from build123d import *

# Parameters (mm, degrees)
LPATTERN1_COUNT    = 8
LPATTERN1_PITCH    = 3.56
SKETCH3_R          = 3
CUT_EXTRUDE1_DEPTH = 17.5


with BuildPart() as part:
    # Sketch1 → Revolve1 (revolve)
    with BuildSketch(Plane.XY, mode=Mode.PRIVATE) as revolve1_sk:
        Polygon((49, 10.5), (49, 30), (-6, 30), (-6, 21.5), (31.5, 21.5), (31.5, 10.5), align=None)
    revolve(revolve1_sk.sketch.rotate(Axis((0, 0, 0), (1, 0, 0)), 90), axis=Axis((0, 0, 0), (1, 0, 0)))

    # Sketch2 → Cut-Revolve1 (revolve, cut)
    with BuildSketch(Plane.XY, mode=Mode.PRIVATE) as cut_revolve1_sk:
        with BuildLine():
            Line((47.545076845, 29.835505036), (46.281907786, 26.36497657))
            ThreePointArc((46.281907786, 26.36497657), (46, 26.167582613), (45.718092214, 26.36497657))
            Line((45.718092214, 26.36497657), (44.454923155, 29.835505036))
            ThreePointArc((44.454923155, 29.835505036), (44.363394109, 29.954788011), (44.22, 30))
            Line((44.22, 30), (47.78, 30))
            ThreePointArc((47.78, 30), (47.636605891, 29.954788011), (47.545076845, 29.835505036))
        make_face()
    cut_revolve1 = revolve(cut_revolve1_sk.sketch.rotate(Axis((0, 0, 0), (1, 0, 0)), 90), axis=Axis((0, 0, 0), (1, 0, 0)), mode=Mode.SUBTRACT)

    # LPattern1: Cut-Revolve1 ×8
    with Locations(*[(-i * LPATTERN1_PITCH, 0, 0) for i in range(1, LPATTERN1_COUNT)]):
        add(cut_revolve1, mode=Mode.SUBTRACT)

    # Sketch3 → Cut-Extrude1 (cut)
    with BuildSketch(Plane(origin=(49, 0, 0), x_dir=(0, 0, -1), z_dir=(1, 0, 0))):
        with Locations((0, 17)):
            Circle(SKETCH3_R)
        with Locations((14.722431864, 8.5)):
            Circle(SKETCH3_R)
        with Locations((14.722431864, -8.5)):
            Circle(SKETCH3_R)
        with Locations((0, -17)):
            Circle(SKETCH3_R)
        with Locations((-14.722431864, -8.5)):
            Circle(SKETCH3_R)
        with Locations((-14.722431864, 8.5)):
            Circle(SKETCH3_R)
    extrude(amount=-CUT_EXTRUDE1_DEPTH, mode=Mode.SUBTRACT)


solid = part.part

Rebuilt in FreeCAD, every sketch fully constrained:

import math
import FreeCAD as App
import Part
import Sketcher
from FreeCAD import Vector
Q = App.Units.Quantity


def add_polygon(sketch, points):
    """Adds a closed chain of lines whose ends are joined by coincident constraints."""
    first, n = sketch.GeometryCount, len(points)
    for a, b in zip(points, points[1:] + points[:1]):
        sketch.addGeometry(Part.LineSegment(App.Vector(*a, 0), App.Vector(*b, 0)), False)
    for i in range(n):
        sketch.addConstraint(Sketcher.Constraint("Coincident", first + i, 2, first + (i + 1) % n, 1))

doc = App.newDocument("Part")
body = doc.addObject("PartDesign::Body", "Body")

# Sketch on XY plane
sketch1 = doc.addObject("Sketcher::SketchObject", "Sketch")
body.addObject(sketch1)
sketch1.AttachmentSupport = (doc.XY_Plane, [""])
sketch1.MapMode = "FlatFace"
add_polygon(sketch1, [(49, 10), (49, 30), (-6, 30), (-6, 22), (32, 22), (32, 10)])  # lines 0-5
sketch1.addConstraint([
    Sketcher.Constraint("Vertical", 0),
    Sketcher.Constraint("Horizontal", 1),
    Sketcher.Constraint("Vertical", 2),
    Sketcher.Constraint("Horizontal", 3),
    Sketcher.Constraint("Vertical", 4),
    Sketcher.Constraint("Horizontal", 5),
    Sketcher.Constraint("DistanceX", 1, 2, 1, 1, Q("55 mm")),
    Sketcher.Constraint("DistanceY", 4, 2, 4, 1, Q("11 mm")),
    Sketcher.Constraint("DistanceX", 3, 1, 3, 2, Q("37.5 mm")),
    Sketcher.Constraint("DistanceY", 0, 1, 0, 2, Q("19.5 mm")),
    Sketcher.Constraint("DistanceX", -1, 1, 0, 2, Q("49 mm")),
    Sketcher.Constraint("DistanceY", -1, 1, 0, 2, Q("30 mm")),
])
revolution = doc.addObject("PartDesign::Revolution", "Revolution")
body.addObject(revolution)
revolution.Profile = sketch1
revolution.ReferenceAxis = (sketch1, ["H_Axis"])
revolution.Angle = 360

# Sketch on XY plane
sketch2 = doc.addObject("Sketcher::SketchObject", "Sketch001")
body.addObject(sketch2)
sketch2.AttachmentSupport = (doc.XY_Plane, [""])
sketch2.MapMode = "FlatFace"
sketch2.addGeometry([
    Part.LineSegment(Vector(46.28, 26.36, 0), Vector(47.55, 29.84, 0)),  # 0
    Part.ArcOfCircle(Part.Circle(Vector(47.78, 29.75, 0), Vector(0, 0, 1), 0.25), math.radians(90), math.radians(160)),  # 1
    Part.LineSegment(Vector(47.78, 30, 0), Vector(44.22, 30, 0)),  # 2
    Part.ArcOfCircle(Part.Circle(Vector(44.22, 29.75, 0), Vector(0, 0, 1), 0.25), math.radians(20), math.radians(90)),  # 3
    Part.LineSegment(Vector(44.45, 29.84, 0), Vector(45.72, 26.36, 0)),  # 4
    Part.ArcOfCircle(Part.Circle(Vector(46, 26.47, 0), Vector(0, 0, 1), 0.3), math.radians(-160), math.radians(-20)),  # 5
], False)
sketch2.addConstraint([
    Sketcher.Constraint("Tangent", 0, 2, 1, 2),
    Sketcher.Constraint("Tangent", 1, 1, 2, 1),
    Sketcher.Constraint("Tangent", 2, 2, 3, 2),
    Sketcher.Constraint("Tangent", 3, 1, 4, 1),
    Sketcher.Constraint("Tangent", 4, 2, 5, 1),
    Sketcher.Constraint("Tangent", 5, 2, 0, 1),
    Sketcher.Constraint("Horizontal", 2),
    Sketcher.Constraint("Equal", 1, 3),
    Sketcher.Constraint("Horizontal", 0, 2, 3, 1),
    Sketcher.Constraint("Radius", 5, Q("0.3 mm")),
    Sketcher.Constraint("Angle", 0, Q("70 deg")),
    Sketcher.Constraint("Radius", 1, Q("0.25 mm")),
    Sketcher.Constraint("DistanceX", -1, 1, 5, 3, Q("46 mm")),
    Sketcher.Constraint("DistanceY", -1, 1, 1, 1, Q("30 mm")),
    Sketcher.Constraint("DistanceX", 2, 2, 2, 1, Q("3.56 mm")),
])
groove = doc.addObject("PartDesign::Groove", "Groove")
body.addObject(groove)
groove.Profile = sketch2
groove.ReferenceAxis = (sketch2, ["H_Axis"])
groove.Angle = 360
doc.recompute()

linearpattern = doc.addObject("PartDesign::LinearPattern", "LinearPattern")
body.addObject(linearpattern)
linearpattern.Originals = [groove]
linearpattern.Direction = (doc.X_Axis, [""])
linearpattern.Mode = "offset"
linearpattern.Offset = 3.56
linearpattern.Occurrences = 8
linearpattern.Reversed = True
body.Tip = linearpattern

# Sketch on YZ plane
sketch3 = doc.addObject("Sketcher::SketchObject", "Sketch002")
body.addObject(sketch3)
sketch3.AttachmentSupport = (doc.YZ_Plane, [""])
sketch3.MapMode = "FlatFace"
sketch3.AttachmentOffset = App.Placement(Vector(0, 0, 49), App.Rotation())
sketch3.addGeometry([
    Part.Circle(Vector(17, 0, 0), Vector(0, 0, 1), 3),  # 0
    Part.Circle(Vector(8.5, -14.7, 0), Vector(0, 0, 1), 3),  # 1
    Part.Circle(Vector(-8.5, -14.7, 0), Vector(0, 0, 1), 3),  # 2
    Part.Circle(Vector(-17, 0, 0), Vector(0, 0, 1), 3),  # 3
    Part.Circle(Vector(-8.5, 14.7, 0), Vector(0, 0, 1), 3),  # 4
    Part.Circle(Vector(8.5, 14.7, 0), Vector(0, 0, 1), 3),  # 5
], False)
sketch3.addConstraint([
    Sketcher.Constraint("Equal", 0, 1),
    Sketcher.Constraint("Equal", 1, 2),
    Sketcher.Constraint("Equal", 2, 3),
    Sketcher.Constraint("Equal", 3, 4),
    Sketcher.Constraint("Equal", 4, 5),
    Sketcher.Constraint("Symmetric", 0, 3, 3, 3, -1, 1),
    Sketcher.Constraint("Symmetric", 1, 3, 4, 3, -1, 1),
    Sketcher.Constraint("Symmetric", 2, 3, 5, 3, -1, 1),
    Sketcher.Constraint("Symmetric", 1, 3, 2, 3, -2),
    Sketcher.Constraint("PointOnObject", 0, 3, -1),
    Sketcher.Constraint("Diameter", 0, Q("6 mm")),
    Sketcher.Constraint("DistanceX", -1, 1, 0, 3, Q("17 mm")),
    Sketcher.Constraint("DistanceX", 2, 3, 1, 3, Q("17 mm")),
    Sketcher.Constraint("DistanceY", 1, 3, -1, 1, Q("14.722432 mm")),
])
pocket1 = doc.addObject("PartDesign::Pocket", "Pocket")
body.addObject(pocket1)
pocket1.Profile = sketch3
pocket1.Length = 17.5

doc.recompute()
